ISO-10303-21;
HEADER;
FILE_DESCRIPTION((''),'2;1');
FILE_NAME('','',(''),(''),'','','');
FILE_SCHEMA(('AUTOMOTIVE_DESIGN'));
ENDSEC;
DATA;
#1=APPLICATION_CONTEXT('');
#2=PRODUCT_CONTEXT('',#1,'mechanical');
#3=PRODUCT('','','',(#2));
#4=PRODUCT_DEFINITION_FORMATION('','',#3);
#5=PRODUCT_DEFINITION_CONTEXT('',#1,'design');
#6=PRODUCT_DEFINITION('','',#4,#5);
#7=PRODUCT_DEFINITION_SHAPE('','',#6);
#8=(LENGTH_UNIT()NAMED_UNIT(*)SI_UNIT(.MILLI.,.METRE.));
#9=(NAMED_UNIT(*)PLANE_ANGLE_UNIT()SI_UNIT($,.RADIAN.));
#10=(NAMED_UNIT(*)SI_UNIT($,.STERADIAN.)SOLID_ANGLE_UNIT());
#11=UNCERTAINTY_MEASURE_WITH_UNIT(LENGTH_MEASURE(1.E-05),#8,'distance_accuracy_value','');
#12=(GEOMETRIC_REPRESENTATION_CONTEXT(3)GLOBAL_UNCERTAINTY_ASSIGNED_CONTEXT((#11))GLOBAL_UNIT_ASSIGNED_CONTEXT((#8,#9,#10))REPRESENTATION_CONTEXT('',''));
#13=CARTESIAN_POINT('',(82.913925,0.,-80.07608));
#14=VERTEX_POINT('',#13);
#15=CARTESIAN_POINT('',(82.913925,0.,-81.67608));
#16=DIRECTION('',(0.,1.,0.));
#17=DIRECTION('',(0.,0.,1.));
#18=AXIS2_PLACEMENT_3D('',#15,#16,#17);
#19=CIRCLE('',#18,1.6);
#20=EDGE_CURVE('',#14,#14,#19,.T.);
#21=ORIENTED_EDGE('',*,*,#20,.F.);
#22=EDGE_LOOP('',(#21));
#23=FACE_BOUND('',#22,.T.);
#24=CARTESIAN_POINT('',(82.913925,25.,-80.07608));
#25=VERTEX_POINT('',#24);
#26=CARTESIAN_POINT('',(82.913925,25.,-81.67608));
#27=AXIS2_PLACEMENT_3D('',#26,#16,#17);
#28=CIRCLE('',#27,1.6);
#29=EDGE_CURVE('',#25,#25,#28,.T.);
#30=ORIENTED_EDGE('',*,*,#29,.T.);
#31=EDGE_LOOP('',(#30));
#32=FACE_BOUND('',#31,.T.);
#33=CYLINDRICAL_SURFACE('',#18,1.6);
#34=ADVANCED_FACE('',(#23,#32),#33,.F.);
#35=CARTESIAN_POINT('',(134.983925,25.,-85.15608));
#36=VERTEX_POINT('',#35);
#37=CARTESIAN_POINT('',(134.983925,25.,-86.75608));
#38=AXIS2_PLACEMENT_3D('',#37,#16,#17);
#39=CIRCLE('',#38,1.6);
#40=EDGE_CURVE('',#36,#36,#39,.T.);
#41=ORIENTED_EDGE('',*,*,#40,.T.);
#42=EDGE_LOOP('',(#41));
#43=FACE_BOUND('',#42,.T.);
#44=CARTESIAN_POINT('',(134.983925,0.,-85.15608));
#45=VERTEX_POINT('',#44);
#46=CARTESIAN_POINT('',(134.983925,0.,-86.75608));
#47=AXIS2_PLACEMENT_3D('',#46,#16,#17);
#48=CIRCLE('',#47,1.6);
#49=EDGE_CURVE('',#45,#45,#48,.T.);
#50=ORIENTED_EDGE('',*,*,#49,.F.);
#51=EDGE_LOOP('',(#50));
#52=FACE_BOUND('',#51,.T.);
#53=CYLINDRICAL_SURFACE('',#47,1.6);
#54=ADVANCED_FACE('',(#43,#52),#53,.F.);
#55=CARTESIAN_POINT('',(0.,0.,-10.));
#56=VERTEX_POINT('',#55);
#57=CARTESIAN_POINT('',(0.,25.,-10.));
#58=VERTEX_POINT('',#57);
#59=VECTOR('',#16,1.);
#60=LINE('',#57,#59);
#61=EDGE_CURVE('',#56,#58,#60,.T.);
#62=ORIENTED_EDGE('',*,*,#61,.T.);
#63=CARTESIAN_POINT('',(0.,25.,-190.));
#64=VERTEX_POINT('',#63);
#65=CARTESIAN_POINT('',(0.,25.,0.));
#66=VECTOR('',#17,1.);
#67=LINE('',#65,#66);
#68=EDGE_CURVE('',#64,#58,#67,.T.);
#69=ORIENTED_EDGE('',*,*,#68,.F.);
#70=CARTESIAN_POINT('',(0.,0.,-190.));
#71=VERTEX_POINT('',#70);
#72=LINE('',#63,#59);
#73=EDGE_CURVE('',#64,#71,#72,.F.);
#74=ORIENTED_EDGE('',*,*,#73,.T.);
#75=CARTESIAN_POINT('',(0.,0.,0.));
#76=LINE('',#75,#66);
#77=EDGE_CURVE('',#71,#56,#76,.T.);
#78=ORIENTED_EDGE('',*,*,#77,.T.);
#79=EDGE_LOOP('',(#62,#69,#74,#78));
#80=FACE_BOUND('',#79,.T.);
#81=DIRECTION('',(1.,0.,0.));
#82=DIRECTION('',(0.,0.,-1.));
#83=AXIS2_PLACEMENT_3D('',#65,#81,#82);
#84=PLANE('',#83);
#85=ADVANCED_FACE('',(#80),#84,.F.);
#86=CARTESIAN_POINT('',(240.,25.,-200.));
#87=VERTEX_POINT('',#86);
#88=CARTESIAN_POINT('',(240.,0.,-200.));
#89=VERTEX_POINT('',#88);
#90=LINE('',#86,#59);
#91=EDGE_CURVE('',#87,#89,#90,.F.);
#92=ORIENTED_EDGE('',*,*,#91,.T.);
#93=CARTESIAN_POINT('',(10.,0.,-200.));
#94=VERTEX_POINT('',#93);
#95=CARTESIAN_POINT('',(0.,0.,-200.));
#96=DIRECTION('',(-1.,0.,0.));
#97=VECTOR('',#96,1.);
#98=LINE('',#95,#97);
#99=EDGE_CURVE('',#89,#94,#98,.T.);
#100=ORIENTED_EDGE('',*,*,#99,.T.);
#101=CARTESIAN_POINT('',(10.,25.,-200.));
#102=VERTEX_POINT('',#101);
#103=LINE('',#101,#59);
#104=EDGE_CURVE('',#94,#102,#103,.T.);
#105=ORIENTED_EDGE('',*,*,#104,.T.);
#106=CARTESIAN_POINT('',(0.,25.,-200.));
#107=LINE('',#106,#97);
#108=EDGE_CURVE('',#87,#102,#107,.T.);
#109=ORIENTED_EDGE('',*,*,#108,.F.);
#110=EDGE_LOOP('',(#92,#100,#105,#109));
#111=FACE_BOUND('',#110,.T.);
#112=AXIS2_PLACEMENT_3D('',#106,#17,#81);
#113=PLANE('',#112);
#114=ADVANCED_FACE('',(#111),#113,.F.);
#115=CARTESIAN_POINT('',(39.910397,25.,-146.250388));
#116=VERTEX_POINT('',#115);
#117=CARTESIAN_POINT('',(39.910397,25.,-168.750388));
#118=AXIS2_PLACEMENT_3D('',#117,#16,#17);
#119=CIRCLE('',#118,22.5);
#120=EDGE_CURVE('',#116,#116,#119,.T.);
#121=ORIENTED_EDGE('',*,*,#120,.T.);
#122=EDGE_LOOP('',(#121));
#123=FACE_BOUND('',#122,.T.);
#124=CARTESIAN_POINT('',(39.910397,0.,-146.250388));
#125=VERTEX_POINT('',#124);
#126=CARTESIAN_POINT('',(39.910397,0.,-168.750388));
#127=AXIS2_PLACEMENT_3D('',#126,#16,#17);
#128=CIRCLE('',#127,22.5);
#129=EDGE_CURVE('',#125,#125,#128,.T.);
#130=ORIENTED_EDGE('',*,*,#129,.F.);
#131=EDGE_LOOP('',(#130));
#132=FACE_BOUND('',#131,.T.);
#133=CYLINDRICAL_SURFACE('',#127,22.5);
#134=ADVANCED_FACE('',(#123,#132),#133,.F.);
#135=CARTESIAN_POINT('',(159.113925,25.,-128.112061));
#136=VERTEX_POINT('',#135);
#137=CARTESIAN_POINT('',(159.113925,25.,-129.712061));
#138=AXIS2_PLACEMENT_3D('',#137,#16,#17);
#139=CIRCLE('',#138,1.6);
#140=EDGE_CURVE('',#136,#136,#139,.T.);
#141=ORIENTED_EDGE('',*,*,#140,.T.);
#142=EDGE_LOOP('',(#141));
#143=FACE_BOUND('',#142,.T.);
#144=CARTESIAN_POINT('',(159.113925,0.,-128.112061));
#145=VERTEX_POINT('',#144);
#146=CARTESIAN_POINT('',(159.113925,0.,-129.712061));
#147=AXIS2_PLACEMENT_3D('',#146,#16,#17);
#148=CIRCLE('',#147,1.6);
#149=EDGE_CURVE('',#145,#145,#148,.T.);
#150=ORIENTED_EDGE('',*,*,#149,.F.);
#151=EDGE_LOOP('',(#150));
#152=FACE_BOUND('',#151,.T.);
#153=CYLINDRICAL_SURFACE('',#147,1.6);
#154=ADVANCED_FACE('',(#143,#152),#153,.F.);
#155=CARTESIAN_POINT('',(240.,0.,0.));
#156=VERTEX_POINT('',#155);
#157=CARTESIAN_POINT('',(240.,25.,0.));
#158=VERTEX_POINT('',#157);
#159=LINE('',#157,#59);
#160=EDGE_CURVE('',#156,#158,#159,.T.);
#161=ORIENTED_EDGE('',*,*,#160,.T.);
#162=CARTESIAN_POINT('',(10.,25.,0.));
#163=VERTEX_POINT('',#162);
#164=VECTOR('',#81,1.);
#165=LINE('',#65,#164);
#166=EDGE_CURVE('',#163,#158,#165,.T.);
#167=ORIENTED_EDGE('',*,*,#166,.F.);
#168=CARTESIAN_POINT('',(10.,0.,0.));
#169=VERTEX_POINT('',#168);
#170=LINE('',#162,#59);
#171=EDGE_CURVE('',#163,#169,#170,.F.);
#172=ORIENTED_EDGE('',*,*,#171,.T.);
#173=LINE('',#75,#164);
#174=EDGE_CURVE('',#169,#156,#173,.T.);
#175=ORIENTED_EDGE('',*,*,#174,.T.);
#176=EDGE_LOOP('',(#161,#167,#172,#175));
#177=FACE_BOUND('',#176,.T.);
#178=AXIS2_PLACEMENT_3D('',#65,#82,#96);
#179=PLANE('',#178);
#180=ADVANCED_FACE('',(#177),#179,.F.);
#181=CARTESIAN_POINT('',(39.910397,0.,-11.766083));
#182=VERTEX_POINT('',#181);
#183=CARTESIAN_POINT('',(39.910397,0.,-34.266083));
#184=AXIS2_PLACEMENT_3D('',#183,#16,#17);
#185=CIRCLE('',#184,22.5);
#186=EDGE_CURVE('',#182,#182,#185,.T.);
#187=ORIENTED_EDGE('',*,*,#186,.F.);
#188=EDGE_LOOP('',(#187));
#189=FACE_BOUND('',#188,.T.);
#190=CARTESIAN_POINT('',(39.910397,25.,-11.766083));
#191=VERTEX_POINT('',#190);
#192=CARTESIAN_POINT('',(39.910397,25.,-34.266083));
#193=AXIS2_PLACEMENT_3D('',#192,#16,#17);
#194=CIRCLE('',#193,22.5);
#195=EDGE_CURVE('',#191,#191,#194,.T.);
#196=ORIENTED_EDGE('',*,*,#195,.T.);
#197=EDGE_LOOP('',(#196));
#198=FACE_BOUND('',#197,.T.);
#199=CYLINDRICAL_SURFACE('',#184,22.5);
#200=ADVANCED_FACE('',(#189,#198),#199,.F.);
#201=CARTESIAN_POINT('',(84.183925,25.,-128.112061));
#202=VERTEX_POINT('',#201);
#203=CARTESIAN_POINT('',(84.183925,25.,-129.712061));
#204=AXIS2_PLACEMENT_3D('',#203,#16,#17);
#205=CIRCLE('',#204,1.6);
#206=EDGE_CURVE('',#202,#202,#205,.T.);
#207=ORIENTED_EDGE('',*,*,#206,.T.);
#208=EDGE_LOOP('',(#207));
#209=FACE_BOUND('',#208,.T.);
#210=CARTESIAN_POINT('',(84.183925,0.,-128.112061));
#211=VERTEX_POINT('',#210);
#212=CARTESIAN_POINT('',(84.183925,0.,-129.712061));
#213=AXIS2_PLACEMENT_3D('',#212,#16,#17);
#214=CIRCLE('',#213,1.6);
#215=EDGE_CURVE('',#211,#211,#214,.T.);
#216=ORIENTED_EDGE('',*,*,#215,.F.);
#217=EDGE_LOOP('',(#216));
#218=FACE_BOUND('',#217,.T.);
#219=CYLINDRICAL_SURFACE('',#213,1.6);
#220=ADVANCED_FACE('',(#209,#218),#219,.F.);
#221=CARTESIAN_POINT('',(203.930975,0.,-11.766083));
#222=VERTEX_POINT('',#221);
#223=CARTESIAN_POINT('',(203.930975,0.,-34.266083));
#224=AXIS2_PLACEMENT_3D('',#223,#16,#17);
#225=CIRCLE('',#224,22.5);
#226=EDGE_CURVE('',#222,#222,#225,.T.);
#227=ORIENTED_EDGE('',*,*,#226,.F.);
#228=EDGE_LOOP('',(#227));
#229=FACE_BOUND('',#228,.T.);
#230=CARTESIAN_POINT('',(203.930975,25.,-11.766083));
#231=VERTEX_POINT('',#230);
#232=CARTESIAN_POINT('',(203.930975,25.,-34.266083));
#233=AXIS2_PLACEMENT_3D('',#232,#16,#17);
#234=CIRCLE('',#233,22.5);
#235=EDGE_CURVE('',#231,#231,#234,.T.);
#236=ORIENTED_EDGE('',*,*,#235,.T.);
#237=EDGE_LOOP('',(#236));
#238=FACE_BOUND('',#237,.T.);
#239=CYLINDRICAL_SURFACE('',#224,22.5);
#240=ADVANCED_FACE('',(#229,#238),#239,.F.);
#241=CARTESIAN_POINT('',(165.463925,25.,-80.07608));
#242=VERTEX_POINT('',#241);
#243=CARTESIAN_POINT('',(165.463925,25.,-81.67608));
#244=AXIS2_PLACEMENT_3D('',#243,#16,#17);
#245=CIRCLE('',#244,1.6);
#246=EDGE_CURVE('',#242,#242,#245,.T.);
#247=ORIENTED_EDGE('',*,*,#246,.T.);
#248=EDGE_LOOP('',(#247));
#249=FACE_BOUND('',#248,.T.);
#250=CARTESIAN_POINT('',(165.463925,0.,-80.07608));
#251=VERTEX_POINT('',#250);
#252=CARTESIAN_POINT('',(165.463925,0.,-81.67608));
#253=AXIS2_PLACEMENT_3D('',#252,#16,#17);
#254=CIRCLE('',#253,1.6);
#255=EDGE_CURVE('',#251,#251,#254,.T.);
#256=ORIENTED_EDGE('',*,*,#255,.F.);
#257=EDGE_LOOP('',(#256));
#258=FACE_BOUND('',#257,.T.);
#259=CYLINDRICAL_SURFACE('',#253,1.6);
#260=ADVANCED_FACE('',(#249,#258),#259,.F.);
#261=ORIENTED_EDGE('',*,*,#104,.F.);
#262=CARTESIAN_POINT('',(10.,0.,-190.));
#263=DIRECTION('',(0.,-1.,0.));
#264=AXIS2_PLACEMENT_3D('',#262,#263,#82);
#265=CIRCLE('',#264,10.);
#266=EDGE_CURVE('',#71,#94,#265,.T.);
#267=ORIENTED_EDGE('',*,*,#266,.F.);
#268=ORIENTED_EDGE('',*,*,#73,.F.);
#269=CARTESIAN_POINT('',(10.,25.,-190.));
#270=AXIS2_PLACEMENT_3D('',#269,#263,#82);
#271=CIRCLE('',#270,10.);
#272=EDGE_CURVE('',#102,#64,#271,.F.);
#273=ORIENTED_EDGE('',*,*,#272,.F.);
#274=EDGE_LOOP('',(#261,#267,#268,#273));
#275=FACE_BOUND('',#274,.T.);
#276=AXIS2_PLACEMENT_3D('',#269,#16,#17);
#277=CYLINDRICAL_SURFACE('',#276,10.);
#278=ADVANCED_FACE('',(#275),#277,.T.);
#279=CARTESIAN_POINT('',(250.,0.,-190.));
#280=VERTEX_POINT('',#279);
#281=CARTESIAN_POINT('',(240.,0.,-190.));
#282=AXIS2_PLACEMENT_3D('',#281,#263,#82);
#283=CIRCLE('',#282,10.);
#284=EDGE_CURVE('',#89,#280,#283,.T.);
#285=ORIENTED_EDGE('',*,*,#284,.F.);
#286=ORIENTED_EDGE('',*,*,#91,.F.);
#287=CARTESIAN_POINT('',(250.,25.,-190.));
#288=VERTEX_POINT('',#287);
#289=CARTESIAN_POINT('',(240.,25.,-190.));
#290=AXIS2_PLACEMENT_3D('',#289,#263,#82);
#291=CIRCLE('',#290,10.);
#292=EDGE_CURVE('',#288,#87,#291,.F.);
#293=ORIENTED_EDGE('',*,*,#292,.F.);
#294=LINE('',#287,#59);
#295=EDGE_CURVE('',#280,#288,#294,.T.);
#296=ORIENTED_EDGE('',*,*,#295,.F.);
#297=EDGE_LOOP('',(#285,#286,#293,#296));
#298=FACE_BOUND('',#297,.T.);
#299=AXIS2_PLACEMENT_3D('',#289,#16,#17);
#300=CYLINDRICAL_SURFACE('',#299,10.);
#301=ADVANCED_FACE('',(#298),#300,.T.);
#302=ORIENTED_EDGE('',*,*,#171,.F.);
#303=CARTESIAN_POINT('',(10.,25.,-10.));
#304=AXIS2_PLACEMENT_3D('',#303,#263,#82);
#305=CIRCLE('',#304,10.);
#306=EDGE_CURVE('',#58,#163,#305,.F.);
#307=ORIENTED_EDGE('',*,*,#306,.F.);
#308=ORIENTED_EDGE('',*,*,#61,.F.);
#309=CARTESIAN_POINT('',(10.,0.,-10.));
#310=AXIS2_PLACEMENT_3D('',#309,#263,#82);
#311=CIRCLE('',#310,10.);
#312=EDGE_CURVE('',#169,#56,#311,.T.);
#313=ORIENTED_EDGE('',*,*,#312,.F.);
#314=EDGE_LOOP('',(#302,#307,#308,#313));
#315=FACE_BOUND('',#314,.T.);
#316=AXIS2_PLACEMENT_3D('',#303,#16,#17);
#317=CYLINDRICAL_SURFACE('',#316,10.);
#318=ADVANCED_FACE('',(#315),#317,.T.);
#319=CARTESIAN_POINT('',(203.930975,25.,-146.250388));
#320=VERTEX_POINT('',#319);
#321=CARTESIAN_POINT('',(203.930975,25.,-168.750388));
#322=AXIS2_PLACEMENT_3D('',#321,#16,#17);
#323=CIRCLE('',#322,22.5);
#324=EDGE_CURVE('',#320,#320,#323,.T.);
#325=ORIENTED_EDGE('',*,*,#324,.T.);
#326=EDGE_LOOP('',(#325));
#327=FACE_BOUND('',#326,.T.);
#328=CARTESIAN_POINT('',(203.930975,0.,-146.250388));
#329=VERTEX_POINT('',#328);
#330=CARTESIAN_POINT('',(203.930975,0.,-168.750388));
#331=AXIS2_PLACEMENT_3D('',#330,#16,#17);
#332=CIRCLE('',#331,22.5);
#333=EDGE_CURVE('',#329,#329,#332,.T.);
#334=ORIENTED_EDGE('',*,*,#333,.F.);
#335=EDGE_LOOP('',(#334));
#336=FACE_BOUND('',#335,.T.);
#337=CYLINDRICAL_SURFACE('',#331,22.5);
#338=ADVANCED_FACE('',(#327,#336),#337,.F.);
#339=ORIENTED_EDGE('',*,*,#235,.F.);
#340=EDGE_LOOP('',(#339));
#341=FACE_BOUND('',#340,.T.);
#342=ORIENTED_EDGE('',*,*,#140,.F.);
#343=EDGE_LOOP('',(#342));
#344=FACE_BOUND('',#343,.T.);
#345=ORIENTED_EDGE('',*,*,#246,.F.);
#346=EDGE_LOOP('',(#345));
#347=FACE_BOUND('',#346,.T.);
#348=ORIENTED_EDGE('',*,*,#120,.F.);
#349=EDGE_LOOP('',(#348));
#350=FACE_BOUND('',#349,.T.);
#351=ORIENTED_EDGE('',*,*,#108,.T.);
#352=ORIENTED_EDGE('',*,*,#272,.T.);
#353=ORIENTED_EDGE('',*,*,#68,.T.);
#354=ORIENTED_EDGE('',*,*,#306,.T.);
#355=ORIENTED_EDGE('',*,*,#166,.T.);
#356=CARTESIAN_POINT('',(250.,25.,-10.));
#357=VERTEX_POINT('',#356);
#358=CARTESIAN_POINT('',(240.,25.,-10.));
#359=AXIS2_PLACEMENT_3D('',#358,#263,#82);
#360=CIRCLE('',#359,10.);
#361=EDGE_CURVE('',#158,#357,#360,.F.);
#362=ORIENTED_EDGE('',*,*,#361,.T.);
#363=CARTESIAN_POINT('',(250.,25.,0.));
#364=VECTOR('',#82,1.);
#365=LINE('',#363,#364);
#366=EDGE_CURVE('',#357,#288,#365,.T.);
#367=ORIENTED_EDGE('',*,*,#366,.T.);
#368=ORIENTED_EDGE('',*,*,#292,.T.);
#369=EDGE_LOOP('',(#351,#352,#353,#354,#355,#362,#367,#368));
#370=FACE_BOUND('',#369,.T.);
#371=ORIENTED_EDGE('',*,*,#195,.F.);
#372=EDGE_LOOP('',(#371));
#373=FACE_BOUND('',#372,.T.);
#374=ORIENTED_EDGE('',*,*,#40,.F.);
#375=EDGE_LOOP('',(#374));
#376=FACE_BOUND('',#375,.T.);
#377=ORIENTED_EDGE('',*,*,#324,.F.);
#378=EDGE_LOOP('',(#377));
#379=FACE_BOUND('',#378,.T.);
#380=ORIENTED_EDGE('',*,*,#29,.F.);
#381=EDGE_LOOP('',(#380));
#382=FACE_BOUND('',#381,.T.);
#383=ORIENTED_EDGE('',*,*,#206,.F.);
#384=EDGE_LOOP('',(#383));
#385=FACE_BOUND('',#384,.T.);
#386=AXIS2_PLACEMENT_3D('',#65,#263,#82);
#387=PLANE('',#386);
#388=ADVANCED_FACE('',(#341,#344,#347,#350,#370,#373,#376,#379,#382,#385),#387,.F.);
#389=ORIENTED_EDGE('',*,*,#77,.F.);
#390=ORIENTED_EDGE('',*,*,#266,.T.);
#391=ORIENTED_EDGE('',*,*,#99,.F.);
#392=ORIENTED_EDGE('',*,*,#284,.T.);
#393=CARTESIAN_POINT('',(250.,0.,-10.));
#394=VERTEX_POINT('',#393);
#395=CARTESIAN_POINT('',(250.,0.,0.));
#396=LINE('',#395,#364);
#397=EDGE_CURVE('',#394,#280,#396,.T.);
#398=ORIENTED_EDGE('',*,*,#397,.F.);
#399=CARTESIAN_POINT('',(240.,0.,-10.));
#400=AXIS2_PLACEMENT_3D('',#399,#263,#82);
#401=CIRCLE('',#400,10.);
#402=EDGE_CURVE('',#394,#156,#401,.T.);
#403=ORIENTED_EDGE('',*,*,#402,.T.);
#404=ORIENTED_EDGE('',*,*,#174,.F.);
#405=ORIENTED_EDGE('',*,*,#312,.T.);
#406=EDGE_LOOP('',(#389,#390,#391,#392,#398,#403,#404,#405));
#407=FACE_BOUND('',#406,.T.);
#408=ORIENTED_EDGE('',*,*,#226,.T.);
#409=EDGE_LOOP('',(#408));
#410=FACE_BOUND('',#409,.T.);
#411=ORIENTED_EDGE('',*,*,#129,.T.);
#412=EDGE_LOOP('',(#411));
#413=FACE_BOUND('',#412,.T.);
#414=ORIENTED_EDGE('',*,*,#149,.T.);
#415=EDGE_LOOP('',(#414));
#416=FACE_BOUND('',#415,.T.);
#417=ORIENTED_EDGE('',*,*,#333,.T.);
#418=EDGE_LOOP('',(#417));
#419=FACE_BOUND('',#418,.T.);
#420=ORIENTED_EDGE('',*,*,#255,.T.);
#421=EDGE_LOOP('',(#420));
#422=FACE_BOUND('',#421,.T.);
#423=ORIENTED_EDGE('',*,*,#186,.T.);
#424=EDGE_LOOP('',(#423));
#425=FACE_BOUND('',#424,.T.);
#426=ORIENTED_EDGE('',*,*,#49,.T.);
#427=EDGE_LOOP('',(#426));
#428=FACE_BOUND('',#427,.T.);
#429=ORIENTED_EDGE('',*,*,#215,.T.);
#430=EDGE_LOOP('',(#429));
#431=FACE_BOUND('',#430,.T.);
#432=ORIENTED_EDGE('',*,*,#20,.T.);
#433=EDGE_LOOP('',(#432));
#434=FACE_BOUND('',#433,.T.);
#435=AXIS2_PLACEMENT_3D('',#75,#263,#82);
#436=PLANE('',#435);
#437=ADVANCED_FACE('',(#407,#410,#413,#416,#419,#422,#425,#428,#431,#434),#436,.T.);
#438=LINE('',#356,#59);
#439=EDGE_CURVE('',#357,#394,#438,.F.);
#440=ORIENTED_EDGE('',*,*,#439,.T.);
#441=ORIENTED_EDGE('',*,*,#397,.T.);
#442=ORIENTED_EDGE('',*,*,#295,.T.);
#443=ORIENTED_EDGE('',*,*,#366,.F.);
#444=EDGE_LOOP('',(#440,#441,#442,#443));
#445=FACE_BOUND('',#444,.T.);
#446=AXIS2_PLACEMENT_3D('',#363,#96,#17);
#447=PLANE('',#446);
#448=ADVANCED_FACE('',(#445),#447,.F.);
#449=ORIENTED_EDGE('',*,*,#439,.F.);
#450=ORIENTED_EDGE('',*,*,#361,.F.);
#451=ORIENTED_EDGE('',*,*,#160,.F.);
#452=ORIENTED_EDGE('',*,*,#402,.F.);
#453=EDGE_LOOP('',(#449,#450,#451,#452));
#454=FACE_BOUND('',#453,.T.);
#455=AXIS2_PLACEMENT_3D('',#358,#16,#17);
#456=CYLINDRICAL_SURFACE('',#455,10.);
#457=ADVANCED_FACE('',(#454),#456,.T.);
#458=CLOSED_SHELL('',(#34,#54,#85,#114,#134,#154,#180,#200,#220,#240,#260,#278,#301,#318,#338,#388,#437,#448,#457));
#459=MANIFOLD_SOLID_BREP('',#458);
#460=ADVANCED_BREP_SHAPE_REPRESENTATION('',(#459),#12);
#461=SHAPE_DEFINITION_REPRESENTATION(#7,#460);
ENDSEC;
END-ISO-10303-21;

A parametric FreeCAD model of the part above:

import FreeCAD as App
import Part
import Sketcher
from FreeCAD import Vector


def edges_at(feature, points):
    """Names of the edges that pass closest to the given points."""
    edges = feature.Shape.Edges
    near = lambda p: min(range(len(edges)), key=lambda i: edges[i].distToShape(Part.Vertex(*p))[0])
    return sorted({f"Edge{near(p) + 1}" for p in points})


def add_polygon(sketch, points):
    """Adds a closed chain of lines whose ends are joined by coincident constraints."""
    first, n = sketch.GeometryCount, len(points)
    for a, b in zip(points, points[1:] + points[:1]):
        sketch.addGeometry(Part.LineSegment(App.Vector(*a, 0), App.Vector(*b, 0)), False)
    for i in range(n):
        sketch.addConstraint(Sketcher.Constraint("Coincident", first + i, 2, first + (i + 1) % n, 1))

doc = App.newDocument("Part")
body = doc.addObject("PartDesign::Body", "Body")

# Sketch on XZ plane
sketch1 = body.newObject("Sketcher::SketchObject", "Sketch")
sketch1.AttachmentSupport = (doc.getObject("XZ_Plane"), [""])
sketch1.MapMode = "FlatFace"
add_polygon(sketch1, [(0, -200), (0, 0), (250, 0), (250, -200)])  # lines 0-3
sketch1.addConstraint([
    Sketcher.Constraint("Vertical", 0),
    Sketcher.Constraint("Horizontal", 1),
    Sketcher.Constraint("Vertical", 2),
    Sketcher.Constraint("Horizontal", 3),
    Sketcher.Constraint("Coincident", 0, 2, -1, 1),
    Sketcher.Constraint("DistanceX", 1, 1, 1, 2, 250.0),
    Sketcher.Constraint("DistanceY", 0, 1, 0, 2, 200.0),
])
pad1 = body.newObject("PartDesign::Pad", "Pad")
pad1.Profile = sketch1
pad1.Length = 25
pad1.Reversed = True
doc.recompute()

fillet = body.newObject("PartDesign::Fillet", "Fillet")
fillet.Base = (pad1, edges_at(pad1, [(0, 12.5, 0)]))
fillet.Radius = 10
doc.recompute()

fillet2 = body.newObject("PartDesign::Fillet", "Fillet001")
fillet2.Base = (fillet, edges_at(fillet, [(250, 12.5, 0)]))
fillet2.Radius = 10
doc.recompute()

fillet3 = body.newObject("PartDesign::Fillet", "Fillet002")
fillet3.Base = (fillet2, edges_at(fillet2, [(250, 12.5, -200)]))
fillet3.Radius = 10
doc.recompute()

fillet4 = body.newObject("PartDesign::Fillet", "Fillet003")
fillet4.Base = (fillet3, edges_at(fillet3, [(0, 12.5, -200)]))
fillet4.Radius = 10

# Sketch on XZ plane
sketch2 = body.newObject("Sketcher::SketchObject", "Sketch001")
sketch2.AttachmentSupport = (doc.getObject("XZ_Plane"), [""])
sketch2.MapMode = "FlatFace"
sketch2.AttachmentOffset = App.Placement(Vector(0, 0, -25), App.Rotation())
sketch2.addGeometry([
    Part.Circle(Vector(84.2, -129.7, 0), Vector(0, 0, 1), 1.6),  # 0
    Part.Circle(Vector(82.9, -81.7, 0), Vector(0, 0, 1), 1.6),  # 1
    Part.Circle(Vector(165.5, -81.7, 0), Vector(0, 0, 1), 1.6),  # 2
    Part.Circle(Vector(159.1, -129.7, 0), Vector(0, 0, 1), 1.6),  # 3
    Part.Circle(Vector(135, -86.8, 0), Vector(0, 0, 1), 1.6),  # 4
], False)
sketch2.addConstraint([
    Sketcher.Constraint("Equal", 0, 1),
    Sketcher.Constraint("Equal", 1, 2),
    Sketcher.Constraint("Equal", 2, 3),
    Sketcher.Constraint("Equal", 3, 4),
    Sketcher.Constraint("Horizontal", 1, 3, 2, 3),
    Sketcher.Constraint("Horizontal", 0, 3, 3, 3),
    Sketcher.Constraint("Diameter", 0, 3.2),
    Sketcher.Constraint("DistanceX", 1, 3, 3, 3, 76.2),
    Sketcher.Constraint("DistanceX", 0, 3, 4, 3, 50.8),
    Sketcher.Constraint("DistanceX", 1, 3, 0, 3, 1.27),
    Sketcher.Constraint("DistanceX", 1, 3, 2, 3, 82.55),
    Sketcher.Constraint("DistanceY", 4, 3, 2, 3, 5.08),
    Sketcher.Constraint("DistanceY", 0, 3, -1, 1, 129.712061),
    Sketcher.Constraint("DistanceY", 1, 3, -1, 1, 81.67608),
    Sketcher.Constraint("DistanceX", -1, 1, 0, 3, 84.183925),
])
pocket1 = body.newObject("PartDesign::Pocket", "Pocket")
pocket1.Profile = sketch2
pocket1.Type = "ThroughAll"
pocket1.Reversed = True

# Sketch on XZ plane
sketch3 = body.newObject("Sketcher::SketchObject", "Sketch002")
sketch3.AttachmentSupport = (doc.getObject("XZ_Plane"), [""])
sketch3.MapMode = "FlatFace"
sketch3.AttachmentOffset = App.Placement(Vector(0, 0, -25), App.Rotation())
sketch3.addGeometry([
    Part.Circle(Vector(204, -169, 0), Vector(0, 0, 1), 22),
    Part.Circle(Vector(204, -34, 0), Vector(0, 0, 1), 22),
    Part.Circle(Vector(40, -34, 0), Vector(0, 0, 1), 22),
    Part.Circle(Vector(40, -169, 0), Vector(0, 0, 1), 22),
], False)
sketch3.addConstraint([
    Sketcher.Constraint("Equal", 0, 1),
    Sketcher.Constraint("Equal", 1, 2),
    Sketcher.Constraint("Equal", 2, 3),
    Sketcher.Constraint("Horizontal", 1, 3, 2, 3),
    Sketcher.Constraint("Horizontal", 0, 3, 3, 3),
    Sketcher.Constraint("Vertical", 0, 3, 1, 3),
    Sketcher.Constraint("Vertical", 2, 3, 3, 3),
    Sketcher.Constraint("Diameter", 0, 45.0),
    Sketcher.Constraint("DistanceX", -1, 1, 0, 3, 203.930975),
    Sketcher.Constraint("DistanceY", 0, 3, -1, 1, 168.750388),
    Sketcher.Constraint("DistanceY", 1, 3, -1, 1, 34.266083),
    Sketcher.Constraint("DistanceX", -1, 1, 2, 3, 39.910397),
])
pocket2 = body.newObject("PartDesign::Pocket", "Pocket001")
pocket2.Profile = sketch3
pocket2.Type = "ThroughAll"
pocket2.Reversed = True

doc.recompute()
